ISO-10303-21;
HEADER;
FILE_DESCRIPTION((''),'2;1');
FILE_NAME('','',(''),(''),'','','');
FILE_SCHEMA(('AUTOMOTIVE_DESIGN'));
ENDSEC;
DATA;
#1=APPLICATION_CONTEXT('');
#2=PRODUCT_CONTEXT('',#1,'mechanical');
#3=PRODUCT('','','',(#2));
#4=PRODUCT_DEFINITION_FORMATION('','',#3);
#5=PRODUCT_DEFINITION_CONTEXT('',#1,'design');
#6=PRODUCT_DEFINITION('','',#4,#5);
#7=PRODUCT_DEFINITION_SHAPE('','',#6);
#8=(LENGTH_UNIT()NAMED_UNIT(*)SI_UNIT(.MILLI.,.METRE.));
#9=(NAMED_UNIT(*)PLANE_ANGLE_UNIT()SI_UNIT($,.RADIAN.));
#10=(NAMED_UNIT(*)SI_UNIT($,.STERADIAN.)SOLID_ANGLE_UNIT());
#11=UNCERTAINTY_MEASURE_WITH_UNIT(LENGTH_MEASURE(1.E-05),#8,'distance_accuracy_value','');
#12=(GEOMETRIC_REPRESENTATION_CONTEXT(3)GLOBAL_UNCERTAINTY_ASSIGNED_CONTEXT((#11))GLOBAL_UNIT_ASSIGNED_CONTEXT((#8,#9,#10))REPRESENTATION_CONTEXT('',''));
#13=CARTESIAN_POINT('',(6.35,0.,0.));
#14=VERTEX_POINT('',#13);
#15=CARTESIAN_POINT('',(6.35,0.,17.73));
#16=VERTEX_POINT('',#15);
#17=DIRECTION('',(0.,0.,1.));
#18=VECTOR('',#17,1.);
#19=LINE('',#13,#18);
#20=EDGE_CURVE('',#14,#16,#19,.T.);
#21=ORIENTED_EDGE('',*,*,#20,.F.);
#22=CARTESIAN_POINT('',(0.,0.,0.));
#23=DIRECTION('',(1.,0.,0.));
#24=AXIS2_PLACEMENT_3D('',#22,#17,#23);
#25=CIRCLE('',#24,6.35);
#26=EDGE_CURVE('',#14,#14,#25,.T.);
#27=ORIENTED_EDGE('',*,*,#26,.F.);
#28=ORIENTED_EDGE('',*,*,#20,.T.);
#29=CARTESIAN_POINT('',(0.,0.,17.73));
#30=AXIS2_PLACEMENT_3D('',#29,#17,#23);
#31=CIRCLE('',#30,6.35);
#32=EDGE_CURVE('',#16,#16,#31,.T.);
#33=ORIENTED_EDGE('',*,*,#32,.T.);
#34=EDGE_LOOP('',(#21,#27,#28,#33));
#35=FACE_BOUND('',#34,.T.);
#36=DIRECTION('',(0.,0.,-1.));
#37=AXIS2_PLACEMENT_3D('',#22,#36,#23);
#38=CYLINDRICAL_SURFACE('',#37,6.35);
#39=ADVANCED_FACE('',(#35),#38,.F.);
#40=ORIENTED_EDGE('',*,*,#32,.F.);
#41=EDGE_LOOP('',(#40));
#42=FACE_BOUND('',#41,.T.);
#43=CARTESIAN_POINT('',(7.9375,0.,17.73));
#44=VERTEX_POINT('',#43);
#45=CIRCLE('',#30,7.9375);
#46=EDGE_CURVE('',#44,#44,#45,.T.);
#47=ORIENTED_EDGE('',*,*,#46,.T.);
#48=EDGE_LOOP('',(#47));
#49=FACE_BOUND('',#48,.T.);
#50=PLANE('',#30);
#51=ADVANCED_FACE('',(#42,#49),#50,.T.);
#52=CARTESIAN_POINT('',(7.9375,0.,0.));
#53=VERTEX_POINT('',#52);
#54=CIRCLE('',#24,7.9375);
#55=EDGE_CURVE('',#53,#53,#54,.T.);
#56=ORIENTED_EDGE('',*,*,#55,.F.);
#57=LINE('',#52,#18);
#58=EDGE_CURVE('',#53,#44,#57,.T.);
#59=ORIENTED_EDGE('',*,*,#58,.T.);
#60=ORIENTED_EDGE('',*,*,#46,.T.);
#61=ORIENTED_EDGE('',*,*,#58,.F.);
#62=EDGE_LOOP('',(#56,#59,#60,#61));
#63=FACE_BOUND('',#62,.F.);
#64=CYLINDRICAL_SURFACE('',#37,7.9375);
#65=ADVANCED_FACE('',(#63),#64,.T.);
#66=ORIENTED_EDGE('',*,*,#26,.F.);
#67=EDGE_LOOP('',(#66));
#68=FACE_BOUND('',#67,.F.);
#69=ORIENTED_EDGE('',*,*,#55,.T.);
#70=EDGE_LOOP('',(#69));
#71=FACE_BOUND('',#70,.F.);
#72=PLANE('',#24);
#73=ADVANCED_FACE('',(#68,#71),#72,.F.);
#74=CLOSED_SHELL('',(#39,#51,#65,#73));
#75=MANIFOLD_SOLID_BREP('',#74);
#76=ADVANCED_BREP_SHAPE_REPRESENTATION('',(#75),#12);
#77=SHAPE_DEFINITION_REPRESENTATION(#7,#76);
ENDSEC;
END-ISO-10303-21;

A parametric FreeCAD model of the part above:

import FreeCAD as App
import Part
import Sketcher
Q = App.Units.Quantity

doc = App.newDocument("Part")
body = doc.addObject("PartDesign::Body", "Body")

# Sketch on XY plane
sketch1 = body.newObject("Sketcher::SketchObject", "Sketch")
sketch1.AttachmentSupport = (doc.getObject("XY_Plane"), [""])
sketch1.MapMode = "FlatFace"
sketch1.addGeometry(Part.Circle(App.Vector(0, 0, 0), App.Vector(0, 0, 1), 8), False)
sketch1.addGeometry(Part.Circle(App.Vector(0, 0, 0), App.Vector(0, 0, 1), 6), False)
sketch1.addConstraint(Sketcher.Constraint("Coincident", 0, 3, -1, 1))
sketch1.addConstraint(Sketcher.Constraint("Coincident", 1, 3, -1, 1))
sketch1.addConstraint(Sketcher.Constraint("Diameter", 1, Q("0.5 in")))
sketch1.addConstraint(Sketcher.Constraint("Diameter", 0, Q("0.625 in")))
pad1 = body.newObject("PartDesign::Pad", "Pad")
pad1.Profile = sketch1
pad1.Length = 17.73

doc.recompute()
